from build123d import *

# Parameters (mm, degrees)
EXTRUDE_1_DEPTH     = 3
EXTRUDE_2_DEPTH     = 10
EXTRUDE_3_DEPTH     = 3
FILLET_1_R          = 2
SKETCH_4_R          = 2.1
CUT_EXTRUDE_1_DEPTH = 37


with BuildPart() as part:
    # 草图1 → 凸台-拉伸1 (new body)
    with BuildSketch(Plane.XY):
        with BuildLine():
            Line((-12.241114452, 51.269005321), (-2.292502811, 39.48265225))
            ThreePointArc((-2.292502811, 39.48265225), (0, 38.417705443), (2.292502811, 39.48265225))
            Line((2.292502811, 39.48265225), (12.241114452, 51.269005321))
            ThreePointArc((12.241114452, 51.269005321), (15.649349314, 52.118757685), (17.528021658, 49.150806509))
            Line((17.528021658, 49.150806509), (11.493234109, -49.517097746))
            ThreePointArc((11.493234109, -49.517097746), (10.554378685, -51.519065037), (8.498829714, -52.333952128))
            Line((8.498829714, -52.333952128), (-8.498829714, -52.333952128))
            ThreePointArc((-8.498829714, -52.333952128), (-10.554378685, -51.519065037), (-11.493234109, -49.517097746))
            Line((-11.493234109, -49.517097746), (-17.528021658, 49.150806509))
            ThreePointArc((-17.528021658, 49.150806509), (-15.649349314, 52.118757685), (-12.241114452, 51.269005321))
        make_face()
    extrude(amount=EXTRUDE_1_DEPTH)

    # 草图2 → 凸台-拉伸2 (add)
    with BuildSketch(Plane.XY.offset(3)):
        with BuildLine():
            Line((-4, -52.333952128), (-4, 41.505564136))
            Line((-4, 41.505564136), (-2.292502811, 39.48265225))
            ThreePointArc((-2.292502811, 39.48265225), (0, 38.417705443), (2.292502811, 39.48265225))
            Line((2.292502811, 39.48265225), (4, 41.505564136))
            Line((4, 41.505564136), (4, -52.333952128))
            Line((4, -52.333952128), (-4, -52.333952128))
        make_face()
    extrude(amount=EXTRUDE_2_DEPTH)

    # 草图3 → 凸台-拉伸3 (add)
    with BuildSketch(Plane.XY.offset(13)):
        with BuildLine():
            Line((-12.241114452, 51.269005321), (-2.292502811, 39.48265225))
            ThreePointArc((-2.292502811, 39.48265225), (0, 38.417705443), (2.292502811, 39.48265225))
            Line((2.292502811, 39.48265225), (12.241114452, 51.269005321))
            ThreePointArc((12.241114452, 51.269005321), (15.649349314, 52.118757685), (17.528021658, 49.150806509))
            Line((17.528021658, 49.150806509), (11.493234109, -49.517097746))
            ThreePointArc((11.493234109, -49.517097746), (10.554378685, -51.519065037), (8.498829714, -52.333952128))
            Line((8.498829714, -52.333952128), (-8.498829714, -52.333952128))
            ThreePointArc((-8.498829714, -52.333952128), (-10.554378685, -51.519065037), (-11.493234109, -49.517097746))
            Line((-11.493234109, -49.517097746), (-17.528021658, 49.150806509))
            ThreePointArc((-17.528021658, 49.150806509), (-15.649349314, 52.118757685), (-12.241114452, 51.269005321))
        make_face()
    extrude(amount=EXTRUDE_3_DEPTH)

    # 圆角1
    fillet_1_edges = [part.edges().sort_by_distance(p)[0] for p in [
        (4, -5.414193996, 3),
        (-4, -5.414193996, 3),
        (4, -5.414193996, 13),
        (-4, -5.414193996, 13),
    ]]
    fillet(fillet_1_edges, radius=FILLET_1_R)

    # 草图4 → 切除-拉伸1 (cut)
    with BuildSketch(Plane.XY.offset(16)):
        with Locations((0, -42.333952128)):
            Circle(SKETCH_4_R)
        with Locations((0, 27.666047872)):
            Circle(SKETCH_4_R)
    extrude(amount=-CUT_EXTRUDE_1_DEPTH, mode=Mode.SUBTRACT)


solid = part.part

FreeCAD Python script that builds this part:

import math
import FreeCAD as App
import Part
import Sketcher
from FreeCAD import Vector


def edges_at(feature, points):
    """Names of the edges that pass closest to the given points."""
    edges = feature.Shape.Edges
    near = lambda p: min(range(len(edges)), key=lambda i: edges[i].distToShape(Part.Vertex(*p))[0])
    return sorted({f"Edge{near(p) + 1}" for p in points})

doc = App.newDocument("Part")
body = doc.addObject("PartDesign::Body", "Body")

# Sketch on XY plane
sketch1 = doc.addObject("Sketcher::SketchObject", "Sketch")
body.addObject(sketch1)
sketch1.AttachmentSupport = (doc.XY_Plane, [""])
sketch1.MapMode = "FlatFace"
sketch1.addGeometry([
    Part.LineSegment(Vector(-2.292503, 39.482652, 0), Vector(-12.241114, 51.269005, 0)),  # 0
    Part.ArcOfCircle(Part.Circle(Vector(-14.533617, 49.333952, 0), Vector(0, 0, 1), 3), math.radians(40.167005), math.radians(183.5)),  # 1
    Part.LineSegment(Vector(-17.528022, 49.150807, 0), Vector(-11.493234, -49.517098, 0)),  # 2
    Part.ArcOfCircle(Part.Circle(Vector(-8.49883, -49.333952, 0), Vector(0, 0, 1), 3), math.radians(-176.5), math.radians(-90)),  # 3
    Part.LineSegment(Vector(-8.49883, -52.333952, 0), Vector(8.49883, -52.333952, 0)),  # 4
    Part.ArcOfCircle(Part.Circle(Vector(8.49883, -49.333952, 0), Vector(0, 0, 1), 3), math.radians(-90), math.radians(-3.5)),  # 5
    Part.LineSegment(Vector(11.493234, -49.517098, 0), Vector(17.528022, 49.150807, 0)),  # 6
    Part.ArcOfCircle(Part.Circle(Vector(14.533617, 49.333952, 0), Vector(0, 0, 1), 3), math.radians(-3.5), math.radians(139.832995)),  # 7
    Part.LineSegment(Vector(12.241114, 51.269005, 0), Vector(2.292503, 39.482652, 0)),  # 8
    Part.ArcOfCircle(Part.Circle(Vector(0, 41.417705, 0), Vector(0, 0, 1), 3), math.radians(-139.832995), math.radians(-40.167005)),  # 9
], False)
sketch1.addConstraint([
    Sketcher.Constraint("Coincident", 0, 2, 1, 1),
    Sketcher.Constraint("Coincident", 1, 2, 2, 1),
    Sketcher.Constraint("Coincident", 2, 2, 3, 1),
    Sketcher.Constraint("Coincident", 3, 2, 4, 1),
    Sketcher.Constraint("Coincident", 4, 2, 5, 1),
    Sketcher.Constraint("Coincident", 5, 2, 6, 1),
    Sketcher.Constraint("Coincident", 6, 2, 7, 1),
    Sketcher.Constraint("Coincident", 7, 2, 8, 1),
    Sketcher.Constraint("Coincident", 8, 2, 9, 2),
    Sketcher.Constraint("Coincident", 9, 1, 0, 1),
    Sketcher.Constraint("Horizontal", 4),
    Sketcher.Constraint("PointOnObject", 9, 3, -2),
    Sketcher.Constraint("Radius", 1, 3.0),
    Sketcher.Constraint("Radius", 3, 3.0),
    Sketcher.Constraint("Radius", 5, 3.0),
    Sketcher.Constraint("Radius", 7, 3.0),
    Sketcher.Constraint("Radius", 9, 3.0),
    Sketcher.Constraint("DistanceX", 4, 1, 4, 2, 16.997659),
    Sketcher.Constraint("DistanceY", 9, 3, 0, 2, 9.8513),
    Sketcher.Constraint("DistanceY", 1, 2, 0, 2, 2.118199),
    Sketcher.Constraint("DistanceY", 9, 3, 6, 2, 7.733101),
    Sketcher.Constraint("DistanceY", 6, 2, 7, 2, 2.118199),
    Sketcher.Constraint("DistanceY", 8, 2, 7, 3, 9.8513),
    Sketcher.Constraint("DistanceY", 9, 1, 1, 3, 9.8513),
    Sketcher.Constraint("Distance", 0, 15.42378),
    Sketcher.Constraint("Distance", 8, 15.42378),
    Sketcher.Constraint("DistanceX", 3, 3, -1, 1, 8.49883),
    Sketcher.Constraint("DistanceX", -1, 1, 5, 3, 8.49883),
    Sketcher.Constraint("DistanceX", 1, 2, -1, 1, 17.528022),
    Sketcher.Constraint("DistanceX", 3, 2, -1, 1, 8.49883),
    Sketcher.Constraint("DistanceX", -1, 1, 6, 2, 17.528022),
    Sketcher.Constraint("DistanceY", 3, 3, 1, 2, 98.484759),
    Sketcher.Constraint("DistanceY", 2, 2, 1, 3, 98.85105),
    Sketcher.Constraint("DistanceX", 2, 2, 5, 2, 22.986468),
    Sketcher.Constraint("DistanceY", -1, 1, 1, 3, 49.333952),
])
pad1 = doc.addObject("PartDesign::Pad", "Pad")
body.addObject(pad1)
pad1.Profile = sketch1
pad1.Length = 3

# Sketch on XY plane
sketch2 = doc.addObject("Sketcher::SketchObject", "Sketch001")
body.addObject(sketch2)
sketch2.AttachmentSupport = (doc.XY_Plane, [""])
sketch2.MapMode = "FlatFace"
sketch2.AttachmentOffset = App.Placement(Vector(0, 0, 3), App.Rotation())
sketch2.addGeometry([
    Part.LineSegment(Vector(-4, 41.5, 0), Vector(-4, -52.3, 0)),  # 0
    Part.LineSegment(Vector(-4, -52.3, 0), Vector(4, -52.3, 0)),  # 1
    Part.LineSegment(Vector(4, -52.3, 0), Vector(4, 41.5, 0)),  # 2
    Part.LineSegment(Vector(4, 41.5, 0), Vector(2.3, 39.5, 0)),  # 3
    Part.ArcOfCircle(Part.Circle(Vector(0, 41.4, 0), Vector(0, 0, 1), 3), math.radians(-140), math.radians(-40)),  # 4
    Part.LineSegment(Vector(-2.3, 39.5, 0), Vector(-4, 41.5, 0)),  # 5
], False)
sketch2.addConstraint([
    Sketcher.Constraint("Coincident", 0, 2, 1, 1),
    Sketcher.Constraint("Coincident", 1, 2, 2, 1),
    Sketcher.Constraint("Coincident", 2, 2, 3, 1),
    Sketcher.Constraint("Tangent", 3, 2, 4, 2),
    Sketcher.Constraint("Tangent", 4, 1, 5, 1),
    Sketcher.Constraint("Coincident", 5, 2, 0, 1),
    Sketcher.Constraint("Vertical", 0),
    Sketcher.Constraint("Horizontal", 1),
    Sketcher.Constraint("Vertical", 2),
    Sketcher.Constraint("Symmetric", 3, 2, 4, 1, -2),
    Sketcher.Constraint("Horizontal", 2, 2, 5, 2),
    Sketcher.Constraint("Radius", 4, 3.0),
    Sketcher.Constraint("DistanceX", 1, 1, 1, 2, 8.0),
    Sketcher.Constraint("Distance", 3, 2.64721),
    Sketcher.Constraint("DistanceY", 0, 2, 0, 1, 93.839516),
    Sketcher.Constraint("DistanceY", -1, 1, 4, 3, 41.417705),
])
pad2 = doc.addObject("PartDesign::Pad", "Pad001")
body.addObject(pad2)
pad2.Profile = sketch2
pad2.Length = 10

# Sketch on XY plane
sketch3 = doc.addObject("Sketcher::SketchObject", "Sketch002")
body.addObject(sketch3)
sketch3.AttachmentSupport = (doc.XY_Plane, [""])
sketch3.MapMode = "FlatFace"
sketch3.AttachmentOffset = App.Placement(Vector(0, 0, 13), App.Rotation())
sketch3.addGeometry([
    Part.LineSegment(Vector(-2.292503, 39.482652, 0), Vector(-12.241114, 51.269005, 0)),  # 0
    Part.ArcOfCircle(Part.Circle(Vector(-14.533617, 49.333952, 0), Vector(0, 0, 1), 3), math.radians(40.167005), math.radians(183.5)),  # 1
    Part.LineSegment(Vector(-17.528022, 49.150807, 0), Vector(-11.493234, -49.517098, 0)),  # 2
    Part.ArcOfCircle(Part.Circle(Vector(-8.49883, -49.333952, 0), Vector(0, 0, 1), 3), math.radians(-176.5), math.radians(-90)),  # 3
    Part.LineSegment(Vector(-8.49883, -52.333952, 0), Vector(8.49883, -52.333952, 0)),  # 4
    Part.ArcOfCircle(Part.Circle(Vector(8.49883, -49.333952, 0), Vector(0, 0, 1), 3), math.radians(-90), math.radians(-3.5)),  # 5
    Part.LineSegment(Vector(11.493234, -49.517098, 0), Vector(17.528022, 49.150807, 0)),  # 6
    Part.ArcOfCircle(Part.Circle(Vector(14.533617, 49.333952, 0), Vector(0, 0, 1), 3), math.radians(-3.5), math.radians(139.832995)),  # 7
    Part.LineSegment(Vector(12.241114, 51.269005, 0), Vector(2.292503, 39.482652, 0)),  # 8
    Part.ArcOfCircle(Part.Circle(Vector(0, 41.417705, 0), Vector(0, 0, 1), 3), math.radians(-139.832995), math.radians(-40.167005)),  # 9
], False)
sketch3.addConstraint([
    Sketcher.Constraint("Coincident", 0, 2, 1, 1),
    Sketcher.Constraint("Coincident", 1, 2, 2, 1),
    Sketcher.Constraint("Coincident", 2, 2, 3, 1),
    Sketcher.Constraint("Coincident", 3, 2, 4, 1),
    Sketcher.Constraint("Coincident", 4, 2, 5, 1),
    Sketcher.Constraint("Coincident", 5, 2, 6, 1),
    Sketcher.Constraint("Coincident", 6, 2, 7, 1),
    Sketcher.Constraint("Coincident", 7, 2, 8, 1),
    Sketcher.Constraint("Coincident", 8, 2, 9, 2),
    Sketcher.Constraint("Coincident", 9, 1, 0, 1),
    Sketcher.Constraint("Horizontal", 4),
    Sketcher.Constraint("PointOnObject", 9, 3, -2),
    Sketcher.Constraint("Radius", 1, 3.0),
    Sketcher.Constraint("Radius", 3, 3.0),
    Sketcher.Constraint("Radius", 5, 3.0),
    Sketcher.Constraint("Radius", 7, 3.0),
    Sketcher.Constraint("Radius", 9, 3.0),
    Sketcher.Constraint("DistanceX", 4, 1, 4, 2, 16.997659),
    Sketcher.Constraint("DistanceY", 9, 3, 0, 2, 9.8513),
    Sketcher.Constraint("DistanceY", 1, 2, 0, 2, 2.118199),
    Sketcher.Constraint("DistanceY", 9, 3, 6, 2, 7.733101),
    Sketcher.Constraint("DistanceY", 6, 2, 7, 2, 2.118199),
    Sketcher.Constraint("DistanceY", 8, 2, 7, 3, 9.8513),
    Sketcher.Constraint("DistanceY", 9, 1, 1, 3, 9.8513),
    Sketcher.Constraint("Distance", 0, 15.42378),
    Sketcher.Constraint("Distance", 8, 15.42378),
    Sketcher.Constraint("DistanceX", 3, 3, -1, 1, 8.49883),
    Sketcher.Constraint("DistanceX", -1, 1, 5, 3, 8.49883),
    Sketcher.Constraint("DistanceX", 1, 2, -1, 1, 17.528022),
    Sketcher.Constraint("DistanceX", 3, 2, -1, 1, 8.49883),
    Sketcher.Constraint("DistanceX", -1, 1, 6, 2, 17.528022),
    Sketcher.Constraint("DistanceY", 3, 3, 1, 2, 98.484759),
    Sketcher.Constraint("DistanceY", 2, 2, 1, 3, 98.85105),
    Sketcher.Constraint("DistanceX", 2, 2, 5, 2, 22.986468),
    Sketcher.Constraint("DistanceY", -1, 1, 1, 3, 49.333952),
])
pad3 = doc.addObject("PartDesign::Pad", "Pad002")
body.addObject(pad3)
pad3.Profile = sketch3
pad3.Length = 3
doc.recompute()

fillet = doc.addObject("PartDesign::Fillet", "Fillet")
body.addObject(fillet)
fillet.Base = (pad3, edges_at(pad3, [
    (4, -5.414, 3),
    (-4, -5.414, 3),
    (4, -5.414, 13),
    (-4, -5.414, 13),
]))
fillet.Radius = 2

# Sketch on XY plane
sketch4 = doc.addObject("Sketcher::SketchObject", "Sketch003")
body.addObject(sketch4)
sketch4.AttachmentSupport = (doc.XY_Plane, [""])
sketch4.MapMode = "FlatFace"
sketch4.AttachmentOffset = App.Placement(Vector(0, 0, 16), App.Rotation())
sketch4.addGeometry([
    Part.Circle(Vector(0, -42.3, 0), Vector(0, 0, 1), 2.1),
    Part.Circle(Vector(0, 27.7, 0), Vector(0, 0, 1), 2.1),
], False)
sketch4.addConstraint([
    Sketcher.Constraint("Equal", 0, 1),
    Sketcher.Constraint("PointOnObject", 0, 3, -2),
    Sketcher.Constraint("PointOnObject", 1, 3, -2),
    Sketcher.Constraint("Diameter", 0, 4.2),
    Sketcher.Constraint("DistanceY", 0, 3, 1, 3, 70.0),
    Sketcher.Constraint("DistanceY", 0, 3, -1, 1, 42.333952),
])
pocket1 = doc.addObject("PartDesign::Pocket", "Pocket")
body.addObject(pocket1)
pocket1.Profile = sketch4
pocket1.Length = 37

doc.recompute()
